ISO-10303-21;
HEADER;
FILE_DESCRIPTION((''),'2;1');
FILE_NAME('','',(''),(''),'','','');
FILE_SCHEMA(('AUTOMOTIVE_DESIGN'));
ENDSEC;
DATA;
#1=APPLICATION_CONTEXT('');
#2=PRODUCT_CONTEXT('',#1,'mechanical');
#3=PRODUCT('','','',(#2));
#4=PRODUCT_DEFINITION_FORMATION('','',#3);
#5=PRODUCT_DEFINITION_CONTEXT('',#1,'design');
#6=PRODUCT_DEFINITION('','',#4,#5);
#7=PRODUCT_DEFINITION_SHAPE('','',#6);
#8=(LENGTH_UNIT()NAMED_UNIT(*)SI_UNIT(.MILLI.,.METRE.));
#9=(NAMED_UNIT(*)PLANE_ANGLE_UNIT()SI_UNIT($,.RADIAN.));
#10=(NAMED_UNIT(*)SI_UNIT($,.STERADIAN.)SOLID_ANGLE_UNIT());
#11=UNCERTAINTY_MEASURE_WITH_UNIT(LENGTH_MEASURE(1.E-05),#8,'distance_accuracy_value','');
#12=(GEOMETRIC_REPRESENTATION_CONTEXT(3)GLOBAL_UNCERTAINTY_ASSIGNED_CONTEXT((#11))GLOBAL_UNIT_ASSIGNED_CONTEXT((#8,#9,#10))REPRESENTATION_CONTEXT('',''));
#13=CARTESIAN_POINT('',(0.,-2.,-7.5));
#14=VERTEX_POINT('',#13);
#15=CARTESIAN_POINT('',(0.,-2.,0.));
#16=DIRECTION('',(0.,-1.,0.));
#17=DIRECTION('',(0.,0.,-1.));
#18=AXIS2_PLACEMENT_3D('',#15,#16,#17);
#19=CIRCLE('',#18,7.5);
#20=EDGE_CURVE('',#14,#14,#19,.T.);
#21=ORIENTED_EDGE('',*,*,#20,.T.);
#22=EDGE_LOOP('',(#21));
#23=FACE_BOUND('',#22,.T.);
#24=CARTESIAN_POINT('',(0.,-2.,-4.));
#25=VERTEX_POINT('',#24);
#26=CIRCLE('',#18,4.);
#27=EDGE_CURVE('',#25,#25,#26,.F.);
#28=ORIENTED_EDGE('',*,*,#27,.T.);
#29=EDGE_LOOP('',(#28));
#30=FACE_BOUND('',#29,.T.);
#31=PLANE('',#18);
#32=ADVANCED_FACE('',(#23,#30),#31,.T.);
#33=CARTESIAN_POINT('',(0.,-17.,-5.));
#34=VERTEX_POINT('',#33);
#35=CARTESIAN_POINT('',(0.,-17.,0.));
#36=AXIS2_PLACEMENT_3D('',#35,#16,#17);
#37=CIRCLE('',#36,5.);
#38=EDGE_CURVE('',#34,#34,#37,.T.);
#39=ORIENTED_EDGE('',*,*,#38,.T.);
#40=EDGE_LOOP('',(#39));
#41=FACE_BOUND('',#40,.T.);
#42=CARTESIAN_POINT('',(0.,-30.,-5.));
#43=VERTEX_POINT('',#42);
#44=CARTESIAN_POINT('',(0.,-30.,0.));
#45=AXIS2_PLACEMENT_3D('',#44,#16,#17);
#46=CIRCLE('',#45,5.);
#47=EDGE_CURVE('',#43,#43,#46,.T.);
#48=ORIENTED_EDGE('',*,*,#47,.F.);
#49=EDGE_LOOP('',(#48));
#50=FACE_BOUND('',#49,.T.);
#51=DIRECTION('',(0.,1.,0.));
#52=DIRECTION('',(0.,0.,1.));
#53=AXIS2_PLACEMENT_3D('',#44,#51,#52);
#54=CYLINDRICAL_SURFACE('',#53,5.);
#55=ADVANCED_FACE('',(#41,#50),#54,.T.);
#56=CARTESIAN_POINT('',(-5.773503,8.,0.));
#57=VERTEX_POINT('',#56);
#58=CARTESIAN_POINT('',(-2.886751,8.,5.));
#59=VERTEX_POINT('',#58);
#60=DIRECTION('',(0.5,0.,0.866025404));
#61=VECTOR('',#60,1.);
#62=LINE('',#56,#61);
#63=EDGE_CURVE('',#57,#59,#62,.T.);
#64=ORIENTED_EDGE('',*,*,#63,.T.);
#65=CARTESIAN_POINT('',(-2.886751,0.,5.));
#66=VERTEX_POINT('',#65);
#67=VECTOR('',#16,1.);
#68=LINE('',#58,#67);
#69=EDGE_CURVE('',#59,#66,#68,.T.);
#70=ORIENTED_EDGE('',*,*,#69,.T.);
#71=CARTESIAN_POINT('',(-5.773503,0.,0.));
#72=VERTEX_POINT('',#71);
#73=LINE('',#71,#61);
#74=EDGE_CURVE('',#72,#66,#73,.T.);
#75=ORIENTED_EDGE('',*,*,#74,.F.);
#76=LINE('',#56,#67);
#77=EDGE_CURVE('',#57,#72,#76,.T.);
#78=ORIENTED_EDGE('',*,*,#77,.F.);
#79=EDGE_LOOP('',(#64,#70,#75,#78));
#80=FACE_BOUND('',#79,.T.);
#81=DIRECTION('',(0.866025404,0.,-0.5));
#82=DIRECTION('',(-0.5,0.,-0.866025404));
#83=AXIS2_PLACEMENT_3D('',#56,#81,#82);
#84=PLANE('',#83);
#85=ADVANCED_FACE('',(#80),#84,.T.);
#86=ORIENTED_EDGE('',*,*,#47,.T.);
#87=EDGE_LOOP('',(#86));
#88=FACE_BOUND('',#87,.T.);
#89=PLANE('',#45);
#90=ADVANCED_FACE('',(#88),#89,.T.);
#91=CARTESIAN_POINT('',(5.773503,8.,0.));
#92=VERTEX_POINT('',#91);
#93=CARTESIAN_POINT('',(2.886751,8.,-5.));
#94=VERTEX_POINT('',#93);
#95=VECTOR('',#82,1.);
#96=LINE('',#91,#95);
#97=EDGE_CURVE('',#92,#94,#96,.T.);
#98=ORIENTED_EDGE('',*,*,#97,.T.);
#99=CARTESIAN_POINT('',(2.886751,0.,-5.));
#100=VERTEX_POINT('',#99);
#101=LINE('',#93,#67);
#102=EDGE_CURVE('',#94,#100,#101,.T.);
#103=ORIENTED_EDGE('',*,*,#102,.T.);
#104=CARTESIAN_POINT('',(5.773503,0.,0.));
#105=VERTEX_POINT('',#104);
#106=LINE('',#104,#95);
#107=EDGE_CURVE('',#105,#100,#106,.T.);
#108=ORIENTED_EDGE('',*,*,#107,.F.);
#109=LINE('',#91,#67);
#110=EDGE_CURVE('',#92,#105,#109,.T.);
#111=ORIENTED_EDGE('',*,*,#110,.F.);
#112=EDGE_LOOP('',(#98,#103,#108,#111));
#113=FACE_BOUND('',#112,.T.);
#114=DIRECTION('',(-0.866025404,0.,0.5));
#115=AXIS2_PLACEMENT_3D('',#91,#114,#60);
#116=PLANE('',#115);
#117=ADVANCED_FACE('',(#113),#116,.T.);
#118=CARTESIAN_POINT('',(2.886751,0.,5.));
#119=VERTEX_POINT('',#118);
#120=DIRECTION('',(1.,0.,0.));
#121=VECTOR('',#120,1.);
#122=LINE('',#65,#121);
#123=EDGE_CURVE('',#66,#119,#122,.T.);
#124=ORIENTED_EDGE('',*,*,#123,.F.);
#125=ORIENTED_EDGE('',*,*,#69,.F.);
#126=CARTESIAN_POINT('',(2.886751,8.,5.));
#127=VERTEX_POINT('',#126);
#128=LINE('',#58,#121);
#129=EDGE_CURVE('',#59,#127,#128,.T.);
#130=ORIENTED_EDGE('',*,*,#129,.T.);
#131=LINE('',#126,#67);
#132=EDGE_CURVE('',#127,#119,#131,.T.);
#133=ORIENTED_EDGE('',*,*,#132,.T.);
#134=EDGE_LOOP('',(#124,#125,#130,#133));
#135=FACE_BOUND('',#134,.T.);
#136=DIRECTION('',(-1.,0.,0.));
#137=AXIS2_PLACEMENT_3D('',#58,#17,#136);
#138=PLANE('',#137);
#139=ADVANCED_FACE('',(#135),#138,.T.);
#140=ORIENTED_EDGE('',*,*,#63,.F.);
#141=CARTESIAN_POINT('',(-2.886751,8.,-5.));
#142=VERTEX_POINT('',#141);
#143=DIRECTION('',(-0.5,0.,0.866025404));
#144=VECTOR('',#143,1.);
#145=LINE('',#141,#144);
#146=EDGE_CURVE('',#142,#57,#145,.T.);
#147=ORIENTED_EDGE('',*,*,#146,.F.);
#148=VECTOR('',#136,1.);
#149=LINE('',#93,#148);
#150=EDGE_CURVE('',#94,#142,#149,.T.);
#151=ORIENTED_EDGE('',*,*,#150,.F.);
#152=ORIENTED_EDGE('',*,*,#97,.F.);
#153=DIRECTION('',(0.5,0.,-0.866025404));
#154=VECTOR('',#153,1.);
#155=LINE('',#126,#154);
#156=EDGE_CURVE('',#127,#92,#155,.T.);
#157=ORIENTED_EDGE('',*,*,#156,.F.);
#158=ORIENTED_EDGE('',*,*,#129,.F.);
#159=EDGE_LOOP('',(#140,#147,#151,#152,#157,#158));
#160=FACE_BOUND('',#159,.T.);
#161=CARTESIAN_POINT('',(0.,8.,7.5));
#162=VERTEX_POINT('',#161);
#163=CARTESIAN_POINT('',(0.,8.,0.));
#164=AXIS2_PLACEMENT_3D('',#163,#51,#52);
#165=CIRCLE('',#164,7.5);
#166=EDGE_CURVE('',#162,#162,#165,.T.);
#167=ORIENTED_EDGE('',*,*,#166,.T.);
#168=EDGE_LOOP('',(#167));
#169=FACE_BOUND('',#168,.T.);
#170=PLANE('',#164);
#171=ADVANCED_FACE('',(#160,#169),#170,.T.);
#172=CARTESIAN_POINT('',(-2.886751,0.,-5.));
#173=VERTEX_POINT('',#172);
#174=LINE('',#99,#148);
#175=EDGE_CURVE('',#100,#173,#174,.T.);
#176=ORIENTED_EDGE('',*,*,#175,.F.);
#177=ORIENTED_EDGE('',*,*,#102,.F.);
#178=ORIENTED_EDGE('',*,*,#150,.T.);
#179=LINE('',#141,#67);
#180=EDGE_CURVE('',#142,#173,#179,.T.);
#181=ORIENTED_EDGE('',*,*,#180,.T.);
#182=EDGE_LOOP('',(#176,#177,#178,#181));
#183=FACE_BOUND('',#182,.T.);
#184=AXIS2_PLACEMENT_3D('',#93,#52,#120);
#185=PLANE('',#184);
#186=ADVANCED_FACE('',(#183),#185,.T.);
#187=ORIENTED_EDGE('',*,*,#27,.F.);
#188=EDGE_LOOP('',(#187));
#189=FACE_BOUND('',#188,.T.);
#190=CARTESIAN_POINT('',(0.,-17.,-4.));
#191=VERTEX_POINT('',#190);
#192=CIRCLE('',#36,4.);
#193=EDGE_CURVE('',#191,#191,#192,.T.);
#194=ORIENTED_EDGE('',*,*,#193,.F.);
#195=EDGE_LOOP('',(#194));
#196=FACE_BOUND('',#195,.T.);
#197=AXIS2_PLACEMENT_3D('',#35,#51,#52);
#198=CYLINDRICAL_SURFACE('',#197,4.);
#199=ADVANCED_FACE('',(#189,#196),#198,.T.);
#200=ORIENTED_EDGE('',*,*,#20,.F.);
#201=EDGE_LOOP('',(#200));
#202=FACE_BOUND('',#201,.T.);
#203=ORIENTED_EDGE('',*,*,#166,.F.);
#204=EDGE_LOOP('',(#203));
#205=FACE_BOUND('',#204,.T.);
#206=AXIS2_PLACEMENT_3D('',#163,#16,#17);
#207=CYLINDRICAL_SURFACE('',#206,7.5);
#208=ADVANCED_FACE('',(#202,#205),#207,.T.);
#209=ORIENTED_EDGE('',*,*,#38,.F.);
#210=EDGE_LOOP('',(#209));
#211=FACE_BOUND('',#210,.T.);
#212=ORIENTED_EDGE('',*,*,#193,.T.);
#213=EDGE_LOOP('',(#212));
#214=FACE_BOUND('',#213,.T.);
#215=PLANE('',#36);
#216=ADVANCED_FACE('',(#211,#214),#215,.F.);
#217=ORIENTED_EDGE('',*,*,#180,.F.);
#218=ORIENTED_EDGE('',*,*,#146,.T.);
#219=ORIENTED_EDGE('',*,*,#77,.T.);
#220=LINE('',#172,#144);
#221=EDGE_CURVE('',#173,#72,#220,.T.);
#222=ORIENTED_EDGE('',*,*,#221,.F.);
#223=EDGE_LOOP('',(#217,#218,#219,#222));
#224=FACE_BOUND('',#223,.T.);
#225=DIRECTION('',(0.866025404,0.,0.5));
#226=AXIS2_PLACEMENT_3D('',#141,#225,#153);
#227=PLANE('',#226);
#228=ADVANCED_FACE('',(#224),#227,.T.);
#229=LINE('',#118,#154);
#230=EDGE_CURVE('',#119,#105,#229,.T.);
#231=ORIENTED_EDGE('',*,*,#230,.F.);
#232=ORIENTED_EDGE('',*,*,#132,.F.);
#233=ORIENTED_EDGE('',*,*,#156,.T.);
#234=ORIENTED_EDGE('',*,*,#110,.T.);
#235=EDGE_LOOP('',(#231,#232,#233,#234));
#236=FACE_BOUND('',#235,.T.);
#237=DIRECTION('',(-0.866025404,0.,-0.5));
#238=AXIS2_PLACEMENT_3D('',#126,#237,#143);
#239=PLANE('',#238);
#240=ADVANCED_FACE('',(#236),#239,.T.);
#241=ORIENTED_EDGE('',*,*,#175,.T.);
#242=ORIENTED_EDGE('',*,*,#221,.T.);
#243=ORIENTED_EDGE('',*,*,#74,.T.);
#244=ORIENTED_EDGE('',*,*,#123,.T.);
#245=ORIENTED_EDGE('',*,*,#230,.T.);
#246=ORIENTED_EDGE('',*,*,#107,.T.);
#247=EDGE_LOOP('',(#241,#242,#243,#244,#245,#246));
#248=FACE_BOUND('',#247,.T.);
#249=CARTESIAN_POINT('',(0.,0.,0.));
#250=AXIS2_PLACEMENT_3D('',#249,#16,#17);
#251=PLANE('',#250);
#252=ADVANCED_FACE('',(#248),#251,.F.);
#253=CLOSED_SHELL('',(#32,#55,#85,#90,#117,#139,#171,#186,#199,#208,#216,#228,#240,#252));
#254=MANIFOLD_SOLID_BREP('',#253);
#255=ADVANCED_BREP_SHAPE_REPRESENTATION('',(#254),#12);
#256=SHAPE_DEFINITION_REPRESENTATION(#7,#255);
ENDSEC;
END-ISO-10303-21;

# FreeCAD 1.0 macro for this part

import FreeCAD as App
import Part
import Sketcher
Q = App.Units.Quantity

doc = App.newDocument("Part")
body = doc.addObject("PartDesign::Body", "Body")

sketch1 = body.newObject("Sketcher::SketchObject", "Sketch")
sketch1.AttachmentSupport = (doc.getObject("XZ_Plane"), [""])
sketch1.MapMode = "FlatFace"
sketch1.addGeometry([
    Part.Circle(App.Vector(0, 0, 0), App.Vector(0, 0, 1), 8),
    Part.LineSegment(App.Vector(3, -5, 0), App.Vector(6, 0, 0)),
    Part.LineSegment(App.Vector(6, 0, 0), App.Vector(3, 5, 0)),
    Part.LineSegment(App.Vector(3, 5, 0), App.Vector(-3, 5, 0)),
    Part.LineSegment(App.Vector(-3, 5, 0), App.Vector(-6, 0, 0)),
    Part.LineSegment(App.Vector(-6, 0, 0), App.Vector(-3, -5, 0)),
    Part.LineSegment(App.Vector(-3, -5, 0), App.Vector(3, -5, 0)),
], False)
sketch1.addConstraint([
    Sketcher.Constraint("Coincident", 1, 2, 2, 1),
    Sketcher.Constraint("Coincident", 2, 2, 3, 1),
    Sketcher.Constraint("Coincident", 3, 2, 4, 1),
    Sketcher.Constraint("Coincident", 4, 2, 5, 1),
    Sketcher.Constraint("Coincident", 5, 2, 6, 1),
    Sketcher.Constraint("Coincident", 6, 2, 1, 1),
    Sketcher.Constraint("Horizontal", 3),
    Sketcher.Constraint("Horizontal", 6),
    Sketcher.Constraint("Coincident", 0, 3, -1, 1),
    Sketcher.Constraint("Symmetric", 1, 2, 4, 2, -1, 1),
    Sketcher.Constraint("Symmetric", 2, 2, 5, 2, -1, 1),
    Sketcher.Constraint("PointOnObject", 1, 2, -1),
    Sketcher.Constraint("Parallel", 1, 4),
    Sketcher.Constraint("Vertical", 3, 2, 5, 2),
    Sketcher.Constraint("Diameter", 0, 15.0),
    Sketcher.Constraint("Angle", 1, Q("60 deg")),
    Sketcher.Constraint("DistanceY", -1, 1, 2, 2, 5.0),
    Sketcher.Constraint("DistanceX", 3, 2, 3, 1, 5.773503),
])
pad1 = body.newObject("PartDesign::Pad", "Pad")
pad1.Profile = sketch1
pad1.Length = 8
pad1.Reversed = True

sketch2 = body.newObject("Sketcher::SketchObject", "Sketch001")
sketch2.AttachmentSupport = (doc.getObject("XZ_Plane"), [""])
sketch2.MapMode = "FlatFace"
sketch2.addGeometry(Part.Circle(App.Vector(0, 0, 0), App.Vector(0, 0, 1), 8), False)
sketch2.addConstraint([
    Sketcher.Constraint("Coincident", 0, 3, -1, 1),
    Sketcher.Constraint("Diameter", 0, 15.0),
])
pad2 = body.newObject("PartDesign::Pad", "Pad001")
pad2.Profile = sketch2
pad2.Length = 2

sketch3 = body.newObject("Sketcher::SketchObject", "Sketch002")
sketch3.AttachmentSupport = (doc.getObject("XZ_Plane"), [""])
sketch3.MapMode = "FlatFace"
sketch3.addGeometry(Part.Circle(App.Vector(0, 0, 0), App.Vector(0, 0, 1), 4), False)
sketch3.addConstraint([
    Sketcher.Constraint("Coincident", 0, 3, -1, 1),
    Sketcher.Constraint("Diameter", 0, 8.0),
])
pad3 = body.newObject("PartDesign::Pad", "Pad002")
pad3.Profile = sketch3
pad3.Length = 17

sketch4 = body.newObject("Sketcher::SketchObject", "Sketch003")
sketch4.AttachmentSupport = (doc.getObject("XZ_Plane"), [""])
sketch4.MapMode = "FlatFace"
sketch4.AttachmentOffset = App.Placement(App.Vector(0, 0, 17), App.Rotation())
sketch4.addGeometry(Part.Circle(App.Vector(0, 0, 0), App.Vector(0, 0, 1), 5), False)
sketch4.addConstraint([
    Sketcher.Constraint("Coincident", 0, 3, -1, 1),
    Sketcher.Constraint("Diameter", 0, 10.0),
])
pad4 = body.newObject("PartDesign::Pad", "Pad003")
pad4.Profile = sketch4
pad4.Length = 13

doc.recompute()
